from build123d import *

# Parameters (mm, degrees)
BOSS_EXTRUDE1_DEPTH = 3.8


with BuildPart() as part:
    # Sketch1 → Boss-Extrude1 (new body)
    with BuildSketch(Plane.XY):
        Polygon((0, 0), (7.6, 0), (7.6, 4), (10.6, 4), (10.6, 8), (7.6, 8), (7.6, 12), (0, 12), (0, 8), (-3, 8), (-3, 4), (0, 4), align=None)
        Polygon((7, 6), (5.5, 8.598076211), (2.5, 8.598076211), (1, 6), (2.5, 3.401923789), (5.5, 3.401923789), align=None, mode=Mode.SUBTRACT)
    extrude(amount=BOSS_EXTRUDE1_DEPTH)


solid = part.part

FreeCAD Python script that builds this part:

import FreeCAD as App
import Part
import Sketcher
from FreeCAD import Vector
Q = App.Units.Quantity

doc = App.newDocument("Part")
body = doc.addObject("PartDesign::Body", "Body")

# Sketch on XY plane
sketch1 = doc.addObject("Sketcher::SketchObject", "Sketch")
body.addObject(sketch1)
sketch1.AttachmentSupport = (doc.XY_Plane, [""])
sketch1.MapMode = "FlatFace"
sketch1.addGeometry([
    Part.LineSegment(Vector(0, 0, 0), Vector(7.6, 0, 0)),  # 0
    Part.LineSegment(Vector(7.6, 0, 0), Vector(7.6, 4, 0)),  # 1
    Part.LineSegment(Vector(7.6, 4, 0), Vector(10.6, 4, 0)),  # 2
    Part.LineSegment(Vector(10.6, 4, 0), Vector(10.6, 8, 0)),  # 3
    Part.LineSegment(Vector(10.6, 8, 0), Vector(7.6, 8, 0)),  # 4
    Part.LineSegment(Vector(7.6, 8, 0), Vector(7.6, 12, 0)),  # 5
    Part.LineSegment(Vector(7.6, 12, 0), Vector(0, 12, 0)),  # 6
    Part.LineSegment(Vector(0, 12, 0), Vector(0, 8, 0)),  # 7
    Part.LineSegment(Vector(0, 8, 0), Vector(-3, 8, 0)),  # 8
    Part.LineSegment(Vector(-3, 8, 0), Vector(-3, 4, 0)),  # 9
    Part.LineSegment(Vector(-3, 4, 0), Vector(0, 4, 0)),  # 10
    Part.LineSegment(Vector(0, 4, 0), Vector(0, 0, 0)),  # 11
    Part.LineSegment(Vector(5.5, 8.6, 0), Vector(7, 6, 0)),  # 12
    Part.LineSegment(Vector(7, 6, 0), Vector(5.5, 3.4, 0)),  # 13
    Part.LineSegment(Vector(5.5, 3.4, 0), Vector(2.5, 3.4, 0)),  # 14
    Part.LineSegment(Vector(2.5, 3.4, 0), Vector(1, 6, 0)),  # 15
    Part.LineSegment(Vector(1, 6, 0), Vector(2.5, 8.6, 0)),  # 16
    Part.LineSegment(Vector(2.5, 8.6, 0), Vector(5.5, 8.6, 0)),  # 17
], False)
sketch1.addConstraint([
    Sketcher.Constraint("Coincident", 0, 2, 1, 1),
    Sketcher.Constraint("Coincident", 1, 2, 2, 1),
    Sketcher.Constraint("Coincident", 2, 2, 3, 1),
    Sketcher.Constraint("Coincident", 3, 2, 4, 1),
    Sketcher.Constraint("Coincident", 4, 2, 5, 1),
    Sketcher.Constraint("Coincident", 5, 2, 6, 1),
    Sketcher.Constraint("Coincident", 6, 2, 7, 1),
    Sketcher.Constraint("Coincident", 7, 2, 8, 1),
    Sketcher.Constraint("Coincident", 8, 2, 9, 1),
    Sketcher.Constraint("Coincident", 9, 2, 10, 1),
    Sketcher.Constraint("Coincident", 10, 2, 11, 1),
    Sketcher.Constraint("Coincident", 11, 2, 0, 1),
    Sketcher.Constraint("Coincident", 12, 2, 13, 1),
    Sketcher.Constraint("Coincident", 13, 2, 14, 1),
    Sketcher.Constraint("Coincident", 14, 2, 15, 1),
    Sketcher.Constraint("Coincident", 15, 2, 16, 1),
    Sketcher.Constraint("Coincident", 16, 2, 17, 1),
    Sketcher.Constraint("Coincident", 17, 2, 12, 1),
    Sketcher.Constraint("Horizontal", 0),
    Sketcher.Constraint("Vertical", 1),
    Sketcher.Constraint("Horizontal", 2),
    Sketcher.Constraint("Vertical", 3),
    Sketcher.Constraint("Horizontal", 4),
    Sketcher.Constraint("Vertical", 5),
    Sketcher.Constraint("Horizontal", 6),
    Sketcher.Constraint("Vertical", 7),
    Sketcher.Constraint("Horizontal", 8),
    Sketcher.Constraint("Vertical", 9),
    Sketcher.Constraint("Horizontal", 10),
    Sketcher.Constraint("Vertical", 11),
    Sketcher.Constraint("Horizontal", 14),
    Sketcher.Constraint("Horizontal", 17),
    Sketcher.Constraint("Coincident", 11, 2, -1, 1),
    Sketcher.Constraint("PointOnObject", 6, 2, -2),
    Sketcher.Constraint("Parallel", 12, 15),
    Sketcher.Constraint("Parallel", 13, 16),
    Sketcher.Constraint("Horizontal", 4, 2, 7, 2),
    Sketcher.Constraint("Horizontal", 2, 2, 9, 2),
    Sketcher.Constraint("Horizontal", 12, 2, 15, 2),
    Sketcher.Constraint("Vertical", 1, 2, 4, 2),
    Sketcher.Constraint("Vertical", 14, 2, 16, 2),
    Sketcher.Constraint("Vertical", 13, 2, 17, 2),
    Sketcher.Constraint("Equal", 4, 8),
    Sketcher.Constraint("Equal", 10, 14),
    Sketcher.Constraint("Equal", 1, 3),
    Sketcher.Constraint("Equal", 3, 5),
    Sketcher.Constraint("DistanceX", 2, 1, 2, 2, Q("3 mm")),
    Sketcher.Constraint("DistanceY", 1, 1, 1, 2, Q("4 mm")),
    Sketcher.Constraint("Angle", 12, Q("-60 deg")),
    Sketcher.Constraint("Distance", 12, Q("3 mm")),
    Sketcher.Constraint("DistanceX", 0, 1, 0, 2, Q("7.6 mm")),
    Sketcher.Constraint("DistanceX", -1, 1, 12, 2, Q("7 mm")),
    Sketcher.Constraint("DistanceY", -1, 1, 12, 2, Q("6 mm")),
])
pad1 = doc.addObject("PartDesign::Pad", "Pad")
body.addObject(pad1)
pad1.Profile = sketch1
pad1.Length = 3.8

doc.recompute()
